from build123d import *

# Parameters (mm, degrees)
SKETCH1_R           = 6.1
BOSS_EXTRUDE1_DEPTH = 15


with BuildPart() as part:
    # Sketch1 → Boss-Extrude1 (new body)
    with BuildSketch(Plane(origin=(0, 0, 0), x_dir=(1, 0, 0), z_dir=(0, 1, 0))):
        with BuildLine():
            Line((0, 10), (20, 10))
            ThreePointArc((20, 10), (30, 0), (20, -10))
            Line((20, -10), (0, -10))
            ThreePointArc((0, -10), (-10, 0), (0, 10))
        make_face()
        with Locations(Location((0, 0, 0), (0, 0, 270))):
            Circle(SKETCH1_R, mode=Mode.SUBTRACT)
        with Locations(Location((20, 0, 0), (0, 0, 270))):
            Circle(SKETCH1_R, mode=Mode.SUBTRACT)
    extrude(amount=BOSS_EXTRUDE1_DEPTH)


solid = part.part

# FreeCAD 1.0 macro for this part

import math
import FreeCAD as App
import Part
import Sketcher

V = App.Vector
Q = App.Units.Quantity

doc = App.newDocument("Part")
body = doc.addObject("PartDesign::Body", "Body")

sketch1 = body.newObject("Sketcher::SketchObject", "Sketch")
sketch1.AttachmentSupport = (doc.getObject("XZ_Plane"), [""])
sketch1.MapMode = "FlatFace"
sketch1.addGeometry(Part.LineSegment(V(20, -10, 0), V(0, -10, 0)), False)
sketch1.addGeometry(Part.ArcOfCircle(Part.Circle(V(0, 0, 0), V(0, 0, 1), 10), math.radians(90), math.radians(270)), False)
sketch1.addGeometry(Part.LineSegment(V(0, 10, 0), V(20, 10, 0)), False)
sketch1.addGeometry(Part.ArcOfCircle(Part.Circle(V(20, 0, 0), V(0, 0, 1), 10), math.radians(-90), math.radians(90)), False)
sketch1.addGeometry(Part.Circle(V(20, 0, 0), V(0, 0, 1), 6), False)
sketch1.addGeometry(Part.Circle(V(0, 0, 0), V(0, 0, 1), 6), False)
sketch1.addConstraint(Sketcher.Constraint("Tangent", 0, 2, 1, 2))
sketch1.addConstraint(Sketcher.Constraint("Tangent", 1, 1, 2, 1))
sketch1.addConstraint(Sketcher.Constraint("Tangent", 2, 2, 3, 2))
sketch1.addConstraint(Sketcher.Constraint("Tangent", 3, 1, 0, 1))
sketch1.addConstraint(Sketcher.Constraint("Horizontal", 0))
sketch1.addConstraint(Sketcher.Constraint("Horizontal", 2))
sketch1.addConstraint(Sketcher.Constraint("Coincident", 1, 3, -1, 1))
sketch1.addConstraint(Sketcher.Constraint("Coincident", 5, 3, -1, 1))
sketch1.addConstraint(Sketcher.Constraint("Coincident", 4, 3, 3, 3))
sketch1.addConstraint(Sketcher.Constraint("Equal", 4, 5))
sketch1.addConstraint(Sketcher.Constraint("Radius", 1, Q("10 mm")))
sketch1.addConstraint(Sketcher.Constraint("Diameter", 4, Q("12.2 mm")))
sketch1.addConstraint(Sketcher.Constraint("DistanceX", 0, 2, 0, 1, Q("20 mm")))
pad1 = body.newObject("PartDesign::Pad", "Pad")
pad1.Profile = sketch1
pad1.Length = 15
pad1.Reversed = True

doc.recompute()
